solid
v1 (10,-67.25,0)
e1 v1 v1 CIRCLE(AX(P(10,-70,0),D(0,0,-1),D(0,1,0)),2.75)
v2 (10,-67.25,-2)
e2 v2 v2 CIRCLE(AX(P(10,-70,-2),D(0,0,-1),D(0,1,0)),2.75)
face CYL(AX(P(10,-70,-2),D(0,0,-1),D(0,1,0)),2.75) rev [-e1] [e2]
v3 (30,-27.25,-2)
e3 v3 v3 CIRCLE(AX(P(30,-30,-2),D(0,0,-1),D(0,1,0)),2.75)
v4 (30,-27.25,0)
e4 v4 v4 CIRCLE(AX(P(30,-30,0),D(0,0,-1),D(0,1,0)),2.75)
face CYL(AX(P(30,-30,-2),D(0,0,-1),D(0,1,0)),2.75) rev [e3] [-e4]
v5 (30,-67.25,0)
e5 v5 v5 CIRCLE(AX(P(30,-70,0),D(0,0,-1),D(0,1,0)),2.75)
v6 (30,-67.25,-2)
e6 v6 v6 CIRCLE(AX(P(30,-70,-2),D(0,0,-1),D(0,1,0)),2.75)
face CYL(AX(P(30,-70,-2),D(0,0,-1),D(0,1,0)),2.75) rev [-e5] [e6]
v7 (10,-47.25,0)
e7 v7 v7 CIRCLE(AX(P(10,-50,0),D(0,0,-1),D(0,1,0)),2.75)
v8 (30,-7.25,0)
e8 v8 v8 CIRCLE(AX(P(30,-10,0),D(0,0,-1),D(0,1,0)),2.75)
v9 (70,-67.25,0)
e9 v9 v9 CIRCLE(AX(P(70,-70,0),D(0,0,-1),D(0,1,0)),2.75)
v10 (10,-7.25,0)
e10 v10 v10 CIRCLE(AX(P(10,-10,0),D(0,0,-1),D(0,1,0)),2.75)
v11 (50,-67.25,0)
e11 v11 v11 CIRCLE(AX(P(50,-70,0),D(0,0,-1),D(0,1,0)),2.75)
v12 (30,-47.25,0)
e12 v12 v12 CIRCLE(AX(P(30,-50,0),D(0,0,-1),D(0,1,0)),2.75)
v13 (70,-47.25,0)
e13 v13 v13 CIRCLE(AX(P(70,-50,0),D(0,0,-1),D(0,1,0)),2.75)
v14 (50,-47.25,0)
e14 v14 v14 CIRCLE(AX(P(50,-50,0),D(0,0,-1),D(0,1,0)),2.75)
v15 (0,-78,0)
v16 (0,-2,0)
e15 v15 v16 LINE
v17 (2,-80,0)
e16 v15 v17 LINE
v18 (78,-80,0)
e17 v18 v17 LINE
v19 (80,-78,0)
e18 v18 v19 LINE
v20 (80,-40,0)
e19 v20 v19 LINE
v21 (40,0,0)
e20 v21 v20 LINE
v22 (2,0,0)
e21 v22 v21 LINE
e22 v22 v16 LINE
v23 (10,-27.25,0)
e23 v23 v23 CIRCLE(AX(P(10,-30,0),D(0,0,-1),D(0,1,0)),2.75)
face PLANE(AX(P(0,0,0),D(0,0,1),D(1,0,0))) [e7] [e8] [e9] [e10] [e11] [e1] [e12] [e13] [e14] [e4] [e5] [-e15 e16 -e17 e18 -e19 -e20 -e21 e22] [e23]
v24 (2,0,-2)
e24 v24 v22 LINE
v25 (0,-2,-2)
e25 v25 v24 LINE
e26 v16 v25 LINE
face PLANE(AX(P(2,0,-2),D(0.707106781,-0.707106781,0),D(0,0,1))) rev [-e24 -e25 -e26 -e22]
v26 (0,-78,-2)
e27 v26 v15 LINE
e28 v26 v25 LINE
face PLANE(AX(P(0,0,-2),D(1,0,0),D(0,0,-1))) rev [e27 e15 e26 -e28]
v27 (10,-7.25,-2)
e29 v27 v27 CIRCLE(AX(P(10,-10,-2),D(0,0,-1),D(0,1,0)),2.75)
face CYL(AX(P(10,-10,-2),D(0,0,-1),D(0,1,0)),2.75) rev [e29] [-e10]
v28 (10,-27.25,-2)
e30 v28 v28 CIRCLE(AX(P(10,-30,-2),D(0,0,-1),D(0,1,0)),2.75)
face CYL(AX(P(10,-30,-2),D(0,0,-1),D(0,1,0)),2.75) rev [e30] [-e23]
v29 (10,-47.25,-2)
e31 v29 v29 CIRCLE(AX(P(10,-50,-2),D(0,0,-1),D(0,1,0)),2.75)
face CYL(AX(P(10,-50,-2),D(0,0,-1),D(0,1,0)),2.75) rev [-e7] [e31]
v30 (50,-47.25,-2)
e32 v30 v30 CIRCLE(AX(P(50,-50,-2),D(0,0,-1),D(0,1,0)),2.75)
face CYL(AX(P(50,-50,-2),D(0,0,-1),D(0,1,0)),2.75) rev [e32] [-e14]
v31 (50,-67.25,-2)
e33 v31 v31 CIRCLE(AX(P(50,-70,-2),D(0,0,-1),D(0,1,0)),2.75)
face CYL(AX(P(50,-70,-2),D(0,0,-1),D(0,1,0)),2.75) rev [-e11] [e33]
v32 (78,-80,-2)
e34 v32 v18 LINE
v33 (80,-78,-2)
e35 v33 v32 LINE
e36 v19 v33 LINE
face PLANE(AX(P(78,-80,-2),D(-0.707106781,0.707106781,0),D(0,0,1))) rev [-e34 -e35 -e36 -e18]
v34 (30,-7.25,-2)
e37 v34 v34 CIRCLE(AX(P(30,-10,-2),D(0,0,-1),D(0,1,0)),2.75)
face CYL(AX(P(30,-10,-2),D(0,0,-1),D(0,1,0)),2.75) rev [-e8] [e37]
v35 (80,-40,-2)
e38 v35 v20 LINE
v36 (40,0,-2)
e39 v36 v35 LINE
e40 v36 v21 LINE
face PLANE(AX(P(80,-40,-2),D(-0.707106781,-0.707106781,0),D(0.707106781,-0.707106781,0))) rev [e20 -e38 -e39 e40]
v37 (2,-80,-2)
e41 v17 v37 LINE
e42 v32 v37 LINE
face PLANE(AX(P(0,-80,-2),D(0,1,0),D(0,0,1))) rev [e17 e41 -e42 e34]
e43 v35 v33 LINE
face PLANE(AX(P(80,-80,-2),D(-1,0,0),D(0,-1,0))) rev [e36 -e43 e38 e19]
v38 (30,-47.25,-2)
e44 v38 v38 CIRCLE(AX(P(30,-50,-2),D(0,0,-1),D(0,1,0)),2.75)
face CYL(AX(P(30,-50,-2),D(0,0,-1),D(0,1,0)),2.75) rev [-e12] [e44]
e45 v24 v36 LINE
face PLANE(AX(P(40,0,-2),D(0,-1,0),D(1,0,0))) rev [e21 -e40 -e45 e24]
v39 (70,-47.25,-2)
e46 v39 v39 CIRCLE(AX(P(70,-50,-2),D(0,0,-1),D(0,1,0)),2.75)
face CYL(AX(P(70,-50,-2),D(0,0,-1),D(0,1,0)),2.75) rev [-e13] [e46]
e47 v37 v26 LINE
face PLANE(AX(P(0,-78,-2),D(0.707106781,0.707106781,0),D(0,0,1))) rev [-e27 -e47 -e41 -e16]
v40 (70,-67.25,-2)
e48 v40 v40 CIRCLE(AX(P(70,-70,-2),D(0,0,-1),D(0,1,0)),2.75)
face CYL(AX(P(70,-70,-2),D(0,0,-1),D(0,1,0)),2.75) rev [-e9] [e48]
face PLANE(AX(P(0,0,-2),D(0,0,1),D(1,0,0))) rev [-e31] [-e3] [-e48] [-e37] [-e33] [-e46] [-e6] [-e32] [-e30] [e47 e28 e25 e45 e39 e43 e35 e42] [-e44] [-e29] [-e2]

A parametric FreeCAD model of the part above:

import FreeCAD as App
import Part
import Sketcher
from FreeCAD import Vector
Q = App.Units.Quantity


def edges_at(feature, points):
    """Names of the edges that pass closest to the given points."""
    edges = feature.Shape.Edges
    near = lambda p: min(range(len(edges)), key=lambda i: edges[i].distToShape(Part.Vertex(*p))[0])
    return sorted({f"Edge{near(p) + 1}" for p in points})


def add_polygon(sketch, points):
    """Adds a closed chain of lines whose ends are joined by coincident constraints."""
    first, n = sketch.GeometryCount, len(points)
    for a, b in zip(points, points[1:] + points[:1]):
        sketch.addGeometry(Part.LineSegment(App.Vector(*a, 0), App.Vector(*b, 0)), False)
    for i in range(n):
        sketch.addConstraint(Sketcher.Constraint("Coincident", first + i, 2, first + (i + 1) % n, 1))

doc = App.newDocument("Part")
body = doc.addObject("PartDesign::Body", "Body")

# Sketch on XY plane
sketch1 = body.newObject("Sketcher::SketchObject", "Sketch")
sketch1.AttachmentSupport = (doc.getObject("XY_Plane"), [""])
sketch1.MapMode = "FlatFace"
add_polygon(sketch1, [(0, -80), (0, 0), (40, 0), (80, -40), (80, -80)])  # lines 0-4
sketch1.addConstraint([
    Sketcher.Constraint("Vertical", 0),
    Sketcher.Constraint("Horizontal", 1),
    Sketcher.Constraint("Vertical", 3),
    Sketcher.Constraint("Horizontal", 4),
    Sketcher.Constraint("Coincident", 0, 2, -1, 1),
    Sketcher.Constraint("Equal", 4, 0),
    Sketcher.Constraint("Equal", 1, 3),
    Sketcher.Constraint("DistanceX", 1, 1, 1, 2, Q("40 mm")),
    Sketcher.Constraint("DistanceX", 4, 2, 4, 1, Q("80 mm")),
])
pad1 = body.newObject("PartDesign::Pad", "Pad")
pad1.Profile = sketch1
pad1.Length = 2
pad1.Reversed = True

# Sketch on XY plane
sketch2 = body.newObject("Sketcher::SketchObject", "Sketch001")
sketch2.AttachmentSupport = (doc.getObject("XY_Plane"), [""])
sketch2.MapMode = "FlatFace"
sketch2.AttachmentOffset = App.Placement(Vector(0, 0, -2), App.Rotation())
sketch2.addGeometry([
    Part.Circle(Vector(10, -70, 0), Vector(0, 0, 1), 2.8),  # 0
    Part.Circle(Vector(10, -50, 0), Vector(0, 0, 1), 2.8),  # 1
    Part.Circle(Vector(10, -30, 0), Vector(0, 0, 1), 2.8),  # 2
    Part.Circle(Vector(10, -10, 0), Vector(0, 0, 1), 2.8),  # 3
    Part.Circle(Vector(30, -70, 0), Vector(0, 0, 1), 2.8),  # 4
    Part.Circle(Vector(30, -50, 0), Vector(0, 0, 1), 2.8),  # 5
    Part.Circle(Vector(30, -30, 0), Vector(0, 0, 1), 2.8),  # 6
    Part.Circle(Vector(30, -10, 0), Vector(0, 0, 1), 2.8),  # 7
    Part.Circle(Vector(50, -70, 0), Vector(0, 0, 1), 2.8),  # 8
    Part.Circle(Vector(50, -50, 0), Vector(0, 0, 1), 2.8),  # 9
    Part.Circle(Vector(70, -70, 0), Vector(0, 0, 1), 2.8),  # 10
    Part.Circle(Vector(70, -50, 0), Vector(0, 0, 1), 2.8),  # 11
], False)
sketch2.addConstraint([
    Sketcher.Constraint("Equal", 0, 1),
    Sketcher.Constraint("Equal", 1, 2),
    Sketcher.Constraint("Equal", 2, 3),
    Sketcher.Constraint("Equal", 3, 4),
    Sketcher.Constraint("Equal", 4, 5),
    Sketcher.Constraint("Equal", 5, 6),
    Sketcher.Constraint("Equal", 6, 7),
    Sketcher.Constraint("Equal", 7, 8),
    Sketcher.Constraint("Equal", 8, 9),
    Sketcher.Constraint("Equal", 9, 10),
    Sketcher.Constraint("Equal", 10, 11),
    Sketcher.Constraint("Horizontal", 0, 3, 4, 3),
    Sketcher.Constraint("Horizontal", 1, 3, 5, 3),
    Sketcher.Constraint("Horizontal", 2, 3, 6, 3),
    Sketcher.Constraint("Horizontal", 3, 3, 7, 3),
    Sketcher.Constraint("Horizontal", 4, 3, 8, 3),
    Sketcher.Constraint("Horizontal", 5, 3, 9, 3),
    Sketcher.Constraint("Horizontal", 8, 3, 10, 3),
    Sketcher.Constraint("Horizontal", 9, 3, 11, 3),
    Sketcher.Constraint("Vertical", 0, 3, 1, 3),
    Sketcher.Constraint("Vertical", 1, 3, 2, 3),
    Sketcher.Constraint("Vertical", 2, 3, 3, 3),
    Sketcher.Constraint("Vertical", 4, 3, 5, 3),
    Sketcher.Constraint("Vertical", 5, 3, 6, 3),
    Sketcher.Constraint("Vertical", 6, 3, 7, 3),
    Sketcher.Constraint("Vertical", 8, 3, 9, 3),
    Sketcher.Constraint("Vertical", 10, 3, 11, 3),
    Sketcher.Constraint("Diameter", 0, Q("5.5 mm")),
    Sketcher.Constraint("DistanceX", -1, 1, 0, 3, Q("10 mm")),
    Sketcher.Constraint("DistanceY", 0, 3, -1, 1, Q("70 mm")),
    Sketcher.Constraint("DistanceY", 1, 3, -1, 1, Q("50 mm")),
    Sketcher.Constraint("DistanceY", 2, 3, -1, 1, Q("30 mm")),
    Sketcher.Constraint("DistanceY", 3, 3, -1, 1, Q("10 mm")),
    Sketcher.Constraint("DistanceX", -1, 1, 4, 3, Q("30 mm")),
    Sketcher.Constraint("DistanceX", -1, 1, 8, 3, Q("50 mm")),
    Sketcher.Constraint("DistanceX", -1, 1, 10, 3, Q("70 mm")),
])
doc.recompute()
hole = body.newObject("PartDesign::Hole", "Hole")
hole.Profile = sketch2
hole.ThreadType = "None"
hole.Diameter = 5.5
hole.DepthType = "ThroughAll"
hole.Reversed = True
doc.recompute()

chamfer = body.newObject("PartDesign::Chamfer", "Chamfer")
chamfer.Base = (hole, edges_at(hole, [(0, 0, -1), (0, -80, -1), (80, -80, -1)]))
chamfer.Size = 2

doc.recompute()
